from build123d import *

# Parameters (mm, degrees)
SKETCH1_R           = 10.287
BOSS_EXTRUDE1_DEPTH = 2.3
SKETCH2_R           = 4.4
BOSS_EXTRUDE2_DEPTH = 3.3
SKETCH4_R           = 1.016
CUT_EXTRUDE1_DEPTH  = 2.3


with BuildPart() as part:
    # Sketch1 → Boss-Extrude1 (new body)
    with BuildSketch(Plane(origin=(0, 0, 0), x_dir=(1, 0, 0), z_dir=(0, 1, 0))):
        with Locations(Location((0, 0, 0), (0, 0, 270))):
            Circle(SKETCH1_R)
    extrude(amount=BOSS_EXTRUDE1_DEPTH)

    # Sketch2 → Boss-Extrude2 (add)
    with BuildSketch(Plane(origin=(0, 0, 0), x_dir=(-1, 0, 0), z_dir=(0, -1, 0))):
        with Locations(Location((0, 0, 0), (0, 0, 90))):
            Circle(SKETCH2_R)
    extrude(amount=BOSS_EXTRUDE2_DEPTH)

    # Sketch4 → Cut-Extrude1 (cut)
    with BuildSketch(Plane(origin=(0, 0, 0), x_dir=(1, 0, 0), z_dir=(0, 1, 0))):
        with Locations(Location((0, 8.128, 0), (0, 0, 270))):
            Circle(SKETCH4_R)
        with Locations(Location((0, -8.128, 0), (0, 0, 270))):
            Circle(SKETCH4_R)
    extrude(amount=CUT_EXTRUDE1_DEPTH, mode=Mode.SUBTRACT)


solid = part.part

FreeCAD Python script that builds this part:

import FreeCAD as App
import Part
import Sketcher
from FreeCAD import Vector
Q = App.Units.Quantity

doc = App.newDocument("Part")
body = doc.addObject("PartDesign::Body", "Body")

# Sketch on XZ plane
sketch1 = body.newObject("Sketcher::SketchObject", "Sketch")
sketch1.AttachmentSupport = (doc.getObject("XZ_Plane"), [""])
sketch1.MapMode = "FlatFace"
sketch1.addGeometry(Part.Circle(Vector(0, 0, 0), Vector(0, 0, 1), 10.287), False)
sketch1.addConstraint([
    Sketcher.Constraint("Coincident", 0, 3, -1, 1),
    Sketcher.Constraint("Diameter", 0, Q("20.574 mm")),
])
pad1 = body.newObject("PartDesign::Pad", "Pad")
pad1.Profile = sketch1
pad1.Length = 2.3
pad1.Reversed = True

# Sketch on XZ plane
sketch2 = body.newObject("Sketcher::SketchObject", "Sketch001")
sketch2.AttachmentSupport = (doc.getObject("XZ_Plane"), [""])
sketch2.MapMode = "FlatFace"
sketch2.addGeometry(Part.Circle(Vector(0, 0, 0), Vector(0, 0, 1), 4.4), False)
sketch2.addConstraint([
    Sketcher.Constraint("Coincident", 0, 3, -1, 1),
    Sketcher.Constraint("Diameter", 0, Q("8.8 mm")),
])
pad2 = body.newObject("PartDesign::Pad", "Pad001")
pad2.Profile = sketch2
pad2.Length = 3.3

# Sketch on XZ plane
sketch3 = body.newObject("Sketcher::SketchObject", "Sketch002")
sketch3.AttachmentSupport = (doc.getObject("XZ_Plane"), [""])
sketch3.MapMode = "FlatFace"
sketch3.addGeometry([
    Part.Circle(Vector(0, -8.128, 0), Vector(0, 0, 1), 1.016),
    Part.Circle(Vector(0, 8.128, 0), Vector(0, 0, 1), 1.016),
], False)
sketch3.addConstraint([
    Sketcher.Constraint("Equal", 0, 1),
    Sketcher.Constraint("Symmetric", 0, 3, 1, 3, -1, 1),
    Sketcher.Constraint("PointOnObject", 0, 3, -2),
    Sketcher.Constraint("Diameter", 0, Q("2.032 mm")),
    Sketcher.Constraint("DistanceY", 0, 3, -1, 1, Q("8.128 mm")),
])
pocket1 = body.newObject("PartDesign::Pocket", "Pocket")
pocket1.Profile = sketch3
pocket1.Length = 2.3

doc.recompute()
